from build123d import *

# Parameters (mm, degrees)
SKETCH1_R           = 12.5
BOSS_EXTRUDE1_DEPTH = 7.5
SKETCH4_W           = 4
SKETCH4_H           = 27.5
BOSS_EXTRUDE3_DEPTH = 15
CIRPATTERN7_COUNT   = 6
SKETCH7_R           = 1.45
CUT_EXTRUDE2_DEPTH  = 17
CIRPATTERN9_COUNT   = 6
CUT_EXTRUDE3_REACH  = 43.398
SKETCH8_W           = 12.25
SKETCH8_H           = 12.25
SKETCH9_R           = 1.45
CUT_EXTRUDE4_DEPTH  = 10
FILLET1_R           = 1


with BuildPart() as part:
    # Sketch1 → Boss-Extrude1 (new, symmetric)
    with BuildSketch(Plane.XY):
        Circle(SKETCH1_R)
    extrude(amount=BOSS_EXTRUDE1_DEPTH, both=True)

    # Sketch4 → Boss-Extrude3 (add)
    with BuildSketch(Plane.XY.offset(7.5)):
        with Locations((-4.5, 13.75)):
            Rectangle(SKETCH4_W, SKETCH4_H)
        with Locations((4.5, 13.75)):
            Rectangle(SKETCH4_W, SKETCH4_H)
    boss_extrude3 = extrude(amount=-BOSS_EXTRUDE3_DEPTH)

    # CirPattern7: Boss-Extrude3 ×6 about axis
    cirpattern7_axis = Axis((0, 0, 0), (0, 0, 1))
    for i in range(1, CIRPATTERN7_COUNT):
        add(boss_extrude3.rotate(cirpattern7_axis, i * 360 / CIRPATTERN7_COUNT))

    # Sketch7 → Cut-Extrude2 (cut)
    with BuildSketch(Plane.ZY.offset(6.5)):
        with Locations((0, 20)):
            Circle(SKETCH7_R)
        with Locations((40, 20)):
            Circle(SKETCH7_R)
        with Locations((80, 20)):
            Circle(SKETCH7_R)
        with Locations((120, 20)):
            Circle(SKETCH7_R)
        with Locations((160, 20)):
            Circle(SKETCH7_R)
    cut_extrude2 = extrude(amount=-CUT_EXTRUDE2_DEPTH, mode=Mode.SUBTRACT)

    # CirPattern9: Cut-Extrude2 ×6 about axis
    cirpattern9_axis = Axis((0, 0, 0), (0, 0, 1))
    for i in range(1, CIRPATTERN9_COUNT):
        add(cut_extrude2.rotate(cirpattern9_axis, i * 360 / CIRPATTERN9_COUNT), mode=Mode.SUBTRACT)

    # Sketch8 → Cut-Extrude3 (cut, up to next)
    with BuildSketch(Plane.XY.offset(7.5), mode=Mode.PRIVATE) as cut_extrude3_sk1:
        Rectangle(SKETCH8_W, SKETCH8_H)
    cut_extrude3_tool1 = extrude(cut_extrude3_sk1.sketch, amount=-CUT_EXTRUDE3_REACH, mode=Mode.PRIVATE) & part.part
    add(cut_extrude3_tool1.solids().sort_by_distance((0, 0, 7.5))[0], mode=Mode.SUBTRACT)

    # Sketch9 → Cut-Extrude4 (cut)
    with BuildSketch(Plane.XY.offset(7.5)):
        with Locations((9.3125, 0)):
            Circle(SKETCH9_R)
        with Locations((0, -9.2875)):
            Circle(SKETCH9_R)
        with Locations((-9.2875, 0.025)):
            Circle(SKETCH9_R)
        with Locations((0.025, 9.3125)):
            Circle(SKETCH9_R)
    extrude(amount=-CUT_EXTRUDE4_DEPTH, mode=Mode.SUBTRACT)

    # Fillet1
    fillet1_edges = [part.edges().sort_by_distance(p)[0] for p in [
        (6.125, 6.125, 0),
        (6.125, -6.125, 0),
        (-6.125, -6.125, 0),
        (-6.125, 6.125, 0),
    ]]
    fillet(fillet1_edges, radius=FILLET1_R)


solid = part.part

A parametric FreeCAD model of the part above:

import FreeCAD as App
import Part
import Sketcher

V = App.Vector
Q = App.Units.Quantity


def edges_at(feature, points):
    """Names of the edges that pass closest to the given points."""
    edges = feature.Shape.Edges
    near = lambda p: min(range(len(edges)), key=lambda i: edges[i].distToShape(Part.Vertex(*p))[0])
    return sorted({f"Edge{near(p) + 1}" for p in points})

doc = App.newDocument("Part")
params = doc.addObject("Spreadsheet::Sheet", "Params")
for row, (alias, value) in enumerate([
    ("sketch1_diameter", "25 mm"),
    ("pad1_length", "15 mm"),
    ("sketch2_width", "4 mm"),
    ("sketch2_height", "27.5 mm"),
    ("pad2_length", "15 mm"),
    ("sketch3_diameter", "2.9 mm"),
    ("pocket1_length", "17 mm"),
    ("sketch4_width", "12.25 mm"),
    ("sketch5_diameter", "2.9 mm"),
    ("pocket3_length", "10 mm"),
    ("fillet_radius", "1 mm"),
], start=1):
    params.set(f"A{row}", alias)
    params.set(f"B{row}", "=" + value)
    params.setAlias(f"B{row}", alias)

body = doc.addObject("PartDesign::Body", "Body")

# Sketch on XY plane
sketch1 = body.newObject("Sketcher::SketchObject", "Sketch")
sketch1.AttachmentSupport = (doc.getObject("XY_Plane"), [""])
sketch1.MapMode = "FlatFace"
sketch1.addGeometry(Part.Circle(V(0, 0, 0), V(0, 0, 1), 12), False)
sketch1.addConstraint(Sketcher.Constraint("Coincident", 0, 3, -1, 1))
sketch1.addConstraint(Sketcher.Constraint("Diameter", 0, Q("25 mm")))
sketch1.setExpression("Constraints[1]", "Params.sketch1_diameter")
pad1 = body.newObject("PartDesign::Pad", "Pad")
pad1.Profile = sketch1
pad1.setExpression("Length", "Params.pad1_length")
pad1.Midplane = True

# Sketch on XY plane
sketch2 = body.newObject("Sketcher::SketchObject", "Sketch001")
sketch2.AttachmentSupport = (doc.getObject("XY_Plane"), [""])
sketch2.MapMode = "FlatFace"
sketch2.AttachmentOffset = App.Placement(V(0, 0, 7.5), App.Rotation())
sketch2.addGeometry(Part.LineSegment(V(-6.5, 27.5, 0), V(-6.5, 0, 0)), False)
sketch2.addGeometry(Part.LineSegment(V(-6.5, 0, 0), V(-2.5, 0, 0)), False)
sketch2.addGeometry(Part.LineSegment(V(-2.5, 0, 0), V(-2.5, 27.5, 0)), False)
sketch2.addGeometry(Part.LineSegment(V(-2.5, 27.5, 0), V(-6.5, 27.5, 0)), False)
sketch2.addGeometry(Part.LineSegment(V(2.5, 27.5, 0), V(2.5, 0, 0)), False)
sketch2.addGeometry(Part.LineSegment(V(2.5, 0, 0), V(6.5, 0, 0)), False)
sketch2.addGeometry(Part.LineSegment(V(6.5, 0, 0), V(6.5, 27.5, 0)), False)
sketch2.addGeometry(Part.LineSegment(V(6.5, 27.5, 0), V(2.5, 27.5, 0)), False)
sketch2.addConstraint(Sketcher.Constraint("Coincident", 0, 2, 1, 1))
sketch2.addConstraint(Sketcher.Constraint("Coincident", 1, 2, 2, 1))
sketch2.addConstraint(Sketcher.Constraint("Coincident", 2, 2, 3, 1))
sketch2.addConstraint(Sketcher.Constraint("Coincident", 3, 2, 0, 1))
sketch2.addConstraint(Sketcher.Constraint("Coincident", 4, 2, 5, 1))
sketch2.addConstraint(Sketcher.Constraint("Coincident", 5, 2, 6, 1))
sketch2.addConstraint(Sketcher.Constraint("Coincident", 6, 2, 7, 1))
sketch2.addConstraint(Sketcher.Constraint("Coincident", 7, 2, 4, 1))
sketch2.addConstraint(Sketcher.Constraint("Vertical", 0))
sketch2.addConstraint(Sketcher.Constraint("Horizontal", 1))
sketch2.addConstraint(Sketcher.Constraint("Vertical", 2))
sketch2.addConstraint(Sketcher.Constraint("Horizontal", 3))
sketch2.addConstraint(Sketcher.Constraint("Vertical", 4))
sketch2.addConstraint(Sketcher.Constraint("Horizontal", 5))
sketch2.addConstraint(Sketcher.Constraint("Vertical", 6))
sketch2.addConstraint(Sketcher.Constraint("Horizontal", 7))
sketch2.addConstraint(Sketcher.Constraint("Symmetric", 1, 2, 4, 2, -1, 1))
sketch2.addConstraint(Sketcher.Constraint("Symmetric", 0, 2, 5, 2, -2))
sketch2.addConstraint(Sketcher.Constraint("Horizontal", 3, 2, 6, 2))
sketch2.addConstraint(Sketcher.Constraint("DistanceX", 1, 1, 1, 2, Q("4 mm")))
sketch2.addConstraint(Sketcher.Constraint("DistanceY", 0, 2, 0, 1, Q("27.5 mm")))
sketch2.addConstraint(Sketcher.Constraint("DistanceX", 1, 2, 4, 2, Q("5 mm")))
sketch2.setExpression("Constraints[19]", "Params.sketch2_width")
sketch2.setExpression("Constraints[20]", "Params.sketch2_height")
pad2 = body.newObject("PartDesign::Pad", "Pad001")
pad2.Profile = sketch2
pad2.setExpression("Length", "Params.pad2_length")
pad2.Reversed = True
doc.recompute()

polarpattern = body.newObject("PartDesign::PolarPattern", "PolarPattern")
polarpattern.Originals = [pad2]
polarpattern.Axis = (doc.getObject("Z_Axis"), [""])
polarpattern.Angle = 360
polarpattern.Occurrences = 6
body.Tip = polarpattern

# Sketch on YZ plane
sketch3 = body.newObject("Sketcher::SketchObject", "Sketch002")
sketch3.AttachmentSupport = (doc.getObject("YZ_Plane"), [""])
sketch3.MapMode = "FlatFace"
sketch3.AttachmentOffset = App.Placement(V(0, 0, -6.5), App.Rotation())
sketch3.addGeometry(Part.Circle(V(20, 0, 0), V(0, 0, 1), 1.4), False)
sketch3.addGeometry(Part.Circle(V(20, 40, 0), V(0, 0, 1), 1.4), False)
sketch3.addGeometry(Part.Circle(V(20, 80, 0), V(0, 0, 1), 1.4), False)
sketch3.addGeometry(Part.Circle(V(20, 120, 0), V(0, 0, 1), 1.4), False)
sketch3.addGeometry(Part.Circle(V(20, 160, 0), V(0, 0, 1), 1.4), False)
sketch3.addConstraint(Sketcher.Constraint("Equal", 0, 1))
sketch3.addConstraint(Sketcher.Constraint("Equal", 1, 2))
sketch3.addConstraint(Sketcher.Constraint("Equal", 2, 3))
sketch3.addConstraint(Sketcher.Constraint("Equal", 3, 4))
sketch3.addConstraint(Sketcher.Constraint("PointOnObject", 0, 3, -1))
sketch3.addConstraint(Sketcher.Constraint("Vertical", 0, 3, 1, 3))
sketch3.addConstraint(Sketcher.Constraint("Vertical", 1, 3, 2, 3))
sketch3.addConstraint(Sketcher.Constraint("Vertical", 2, 3, 3, 3))
sketch3.addConstraint(Sketcher.Constraint("Vertical", 3, 3, 4, 3))
sketch3.addConstraint(Sketcher.Constraint("Diameter", 0, Q("2.9 mm")))
sketch3.addConstraint(Sketcher.Constraint("DistanceX", -1, 1, 0, 3, Q("20 mm")))
sketch3.addConstraint(Sketcher.Constraint("DistanceY", -1, 1, 1, 3, Q("40 mm")))
sketch3.addConstraint(Sketcher.Constraint("DistanceY", -1, 1, 2, 3, Q("80 mm")))
sketch3.addConstraint(Sketcher.Constraint("DistanceY", -1, 1, 3, 3, Q("120 mm")))
sketch3.addConstraint(Sketcher.Constraint("DistanceY", -1, 1, 4, 3, Q("160 mm")))
sketch3.setExpression("Constraints[9]", "Params.sketch3_diameter")
pocket1 = body.newObject("PartDesign::Pocket", "Pocket")
pocket1.Profile = sketch3
pocket1.setExpression("Length", "Params.pocket1_length")
pocket1.Reversed = True
doc.recompute()

polarpattern2 = body.newObject("PartDesign::PolarPattern", "PolarPattern001")
polarpattern2.Originals = [pocket1]
polarpattern2.Axis = (doc.getObject("Z_Axis"), [""])
polarpattern2.Angle = 360
polarpattern2.Occurrences = 6
body.Tip = polarpattern2

# Sketch on XY plane
sketch4 = body.newObject("Sketcher::SketchObject", "Sketch003")
sketch4.AttachmentSupport = (doc.getObject("XY_Plane"), [""])
sketch4.MapMode = "FlatFace"
sketch4.AttachmentOffset = App.Placement(V(0, 0, 7.5), App.Rotation())
sketch4.addGeometry(Part.LineSegment(V(-6, 6, 0), V(-6, -6, 0)), False)
sketch4.addGeometry(Part.LineSegment(V(-6, -6, 0), V(6, -6, 0)), False)
sketch4.addGeometry(Part.LineSegment(V(6, -6, 0), V(6, 6, 0)), False)
sketch4.addGeometry(Part.LineSegment(V(6, 6, 0), V(-6, 6, 0)), False)
sketch4.addConstraint(Sketcher.Constraint("Coincident", 0, 2, 1, 1))
sketch4.addConstraint(Sketcher.Constraint("Coincident", 1, 2, 2, 1))
sketch4.addConstraint(Sketcher.Constraint("Coincident", 2, 2, 3, 1))
sketch4.addConstraint(Sketcher.Constraint("Coincident", 3, 2, 0, 1))
sketch4.addConstraint(Sketcher.Constraint("Vertical", 0))
sketch4.addConstraint(Sketcher.Constraint("Horizontal", 1))
sketch4.addConstraint(Sketcher.Constraint("Vertical", 2))
sketch4.addConstraint(Sketcher.Constraint("Horizontal", 3))
sketch4.addConstraint(Sketcher.Constraint("Symmetric", 0, 2, 2, 2, -1, 1))
sketch4.addConstraint(Sketcher.Constraint("Equal", 3, 0))
sketch4.addConstraint(Sketcher.Constraint("DistanceX", 1, 1, 1, 2, Q("12.25 mm")))
sketch4.setExpression("Constraints[10]", "Params.sketch4_width")
pocket2 = body.newObject("PartDesign::Pocket", "Pocket001")
pocket2.Profile = sketch4
pocket2.Type = "UpToFirst"

# Sketch on XY plane
sketch5 = body.newObject("Sketcher::SketchObject", "Sketch004")
sketch5.AttachmentSupport = (doc.getObject("XY_Plane"), [""])
sketch5.MapMode = "FlatFace"
sketch5.AttachmentOffset = App.Placement(V(0, 0, 7.5), App.Rotation())
sketch5.addGeometry(Part.Circle(V(9.3, 0, 0), V(0, 0, 1), 1.4), False)
sketch5.addGeometry(Part.Circle(V(0, -9.3, 0), V(0, 0, 1), 1.4), False)
sketch5.addGeometry(Part.Circle(V(-9.3, 0, 0), V(0, 0, 1), 1.4), False)
sketch5.addGeometry(Part.Circle(V(0, 9.3, 0), V(0, 0, 1), 1.4), False)
sketch5.addConstraint(Sketcher.Constraint("Equal", 0, 1))
sketch5.addConstraint(Sketcher.Constraint("Equal", 1, 2))
sketch5.addConstraint(Sketcher.Constraint("Equal", 2, 3))
sketch5.addConstraint(Sketcher.Constraint("PointOnObject", 0, 3, -1))
sketch5.addConstraint(Sketcher.Constraint("PointOnObject", 1, 3, -2))
sketch5.addConstraint(Sketcher.Constraint("Diameter", 0, Q("2.9 mm")))
sketch5.addConstraint(Sketcher.Constraint("DistanceX", 2, 3, 0, 3, Q("18.6 mm")))
sketch5.addConstraint(Sketcher.Constraint("DistanceY", 1, 3, 3, 3, Q("18.6 mm")))
sketch5.addConstraint(Sketcher.Constraint("DistanceY", -1, 1, 2, 3, Q("0.025 mm")))
sketch5.addConstraint(Sketcher.Constraint("DistanceX", -1, 1, 3, 3, Q("0.025 mm")))
sketch5.addConstraint(Sketcher.Constraint("DistanceX", -1, 1, 0, 3, Q("9.3125 mm")))
sketch5.addConstraint(Sketcher.Constraint("DistanceY", 1, 3, -1, 1, Q("9.2875 mm")))
sketch5.setExpression("Constraints[5]", "Params.sketch5_diameter")
pocket3 = body.newObject("PartDesign::Pocket", "Pocket002")
pocket3.Profile = sketch5
pocket3.setExpression("Length", "Params.pocket3_length")
doc.recompute()

fillet = body.newObject("PartDesign::Fillet", "Fillet")
fillet.Base = (pocket3, edges_at(pocket3, [
    (6.125, 6.125, 0),
    (6.125, -6.125, 0),
    (-6.125, -6.125, 0),
    (-6.125, 6.125, 0),
]))
fillet.setExpression("Radius", "Params.fillet_radius")

doc.recompute()
